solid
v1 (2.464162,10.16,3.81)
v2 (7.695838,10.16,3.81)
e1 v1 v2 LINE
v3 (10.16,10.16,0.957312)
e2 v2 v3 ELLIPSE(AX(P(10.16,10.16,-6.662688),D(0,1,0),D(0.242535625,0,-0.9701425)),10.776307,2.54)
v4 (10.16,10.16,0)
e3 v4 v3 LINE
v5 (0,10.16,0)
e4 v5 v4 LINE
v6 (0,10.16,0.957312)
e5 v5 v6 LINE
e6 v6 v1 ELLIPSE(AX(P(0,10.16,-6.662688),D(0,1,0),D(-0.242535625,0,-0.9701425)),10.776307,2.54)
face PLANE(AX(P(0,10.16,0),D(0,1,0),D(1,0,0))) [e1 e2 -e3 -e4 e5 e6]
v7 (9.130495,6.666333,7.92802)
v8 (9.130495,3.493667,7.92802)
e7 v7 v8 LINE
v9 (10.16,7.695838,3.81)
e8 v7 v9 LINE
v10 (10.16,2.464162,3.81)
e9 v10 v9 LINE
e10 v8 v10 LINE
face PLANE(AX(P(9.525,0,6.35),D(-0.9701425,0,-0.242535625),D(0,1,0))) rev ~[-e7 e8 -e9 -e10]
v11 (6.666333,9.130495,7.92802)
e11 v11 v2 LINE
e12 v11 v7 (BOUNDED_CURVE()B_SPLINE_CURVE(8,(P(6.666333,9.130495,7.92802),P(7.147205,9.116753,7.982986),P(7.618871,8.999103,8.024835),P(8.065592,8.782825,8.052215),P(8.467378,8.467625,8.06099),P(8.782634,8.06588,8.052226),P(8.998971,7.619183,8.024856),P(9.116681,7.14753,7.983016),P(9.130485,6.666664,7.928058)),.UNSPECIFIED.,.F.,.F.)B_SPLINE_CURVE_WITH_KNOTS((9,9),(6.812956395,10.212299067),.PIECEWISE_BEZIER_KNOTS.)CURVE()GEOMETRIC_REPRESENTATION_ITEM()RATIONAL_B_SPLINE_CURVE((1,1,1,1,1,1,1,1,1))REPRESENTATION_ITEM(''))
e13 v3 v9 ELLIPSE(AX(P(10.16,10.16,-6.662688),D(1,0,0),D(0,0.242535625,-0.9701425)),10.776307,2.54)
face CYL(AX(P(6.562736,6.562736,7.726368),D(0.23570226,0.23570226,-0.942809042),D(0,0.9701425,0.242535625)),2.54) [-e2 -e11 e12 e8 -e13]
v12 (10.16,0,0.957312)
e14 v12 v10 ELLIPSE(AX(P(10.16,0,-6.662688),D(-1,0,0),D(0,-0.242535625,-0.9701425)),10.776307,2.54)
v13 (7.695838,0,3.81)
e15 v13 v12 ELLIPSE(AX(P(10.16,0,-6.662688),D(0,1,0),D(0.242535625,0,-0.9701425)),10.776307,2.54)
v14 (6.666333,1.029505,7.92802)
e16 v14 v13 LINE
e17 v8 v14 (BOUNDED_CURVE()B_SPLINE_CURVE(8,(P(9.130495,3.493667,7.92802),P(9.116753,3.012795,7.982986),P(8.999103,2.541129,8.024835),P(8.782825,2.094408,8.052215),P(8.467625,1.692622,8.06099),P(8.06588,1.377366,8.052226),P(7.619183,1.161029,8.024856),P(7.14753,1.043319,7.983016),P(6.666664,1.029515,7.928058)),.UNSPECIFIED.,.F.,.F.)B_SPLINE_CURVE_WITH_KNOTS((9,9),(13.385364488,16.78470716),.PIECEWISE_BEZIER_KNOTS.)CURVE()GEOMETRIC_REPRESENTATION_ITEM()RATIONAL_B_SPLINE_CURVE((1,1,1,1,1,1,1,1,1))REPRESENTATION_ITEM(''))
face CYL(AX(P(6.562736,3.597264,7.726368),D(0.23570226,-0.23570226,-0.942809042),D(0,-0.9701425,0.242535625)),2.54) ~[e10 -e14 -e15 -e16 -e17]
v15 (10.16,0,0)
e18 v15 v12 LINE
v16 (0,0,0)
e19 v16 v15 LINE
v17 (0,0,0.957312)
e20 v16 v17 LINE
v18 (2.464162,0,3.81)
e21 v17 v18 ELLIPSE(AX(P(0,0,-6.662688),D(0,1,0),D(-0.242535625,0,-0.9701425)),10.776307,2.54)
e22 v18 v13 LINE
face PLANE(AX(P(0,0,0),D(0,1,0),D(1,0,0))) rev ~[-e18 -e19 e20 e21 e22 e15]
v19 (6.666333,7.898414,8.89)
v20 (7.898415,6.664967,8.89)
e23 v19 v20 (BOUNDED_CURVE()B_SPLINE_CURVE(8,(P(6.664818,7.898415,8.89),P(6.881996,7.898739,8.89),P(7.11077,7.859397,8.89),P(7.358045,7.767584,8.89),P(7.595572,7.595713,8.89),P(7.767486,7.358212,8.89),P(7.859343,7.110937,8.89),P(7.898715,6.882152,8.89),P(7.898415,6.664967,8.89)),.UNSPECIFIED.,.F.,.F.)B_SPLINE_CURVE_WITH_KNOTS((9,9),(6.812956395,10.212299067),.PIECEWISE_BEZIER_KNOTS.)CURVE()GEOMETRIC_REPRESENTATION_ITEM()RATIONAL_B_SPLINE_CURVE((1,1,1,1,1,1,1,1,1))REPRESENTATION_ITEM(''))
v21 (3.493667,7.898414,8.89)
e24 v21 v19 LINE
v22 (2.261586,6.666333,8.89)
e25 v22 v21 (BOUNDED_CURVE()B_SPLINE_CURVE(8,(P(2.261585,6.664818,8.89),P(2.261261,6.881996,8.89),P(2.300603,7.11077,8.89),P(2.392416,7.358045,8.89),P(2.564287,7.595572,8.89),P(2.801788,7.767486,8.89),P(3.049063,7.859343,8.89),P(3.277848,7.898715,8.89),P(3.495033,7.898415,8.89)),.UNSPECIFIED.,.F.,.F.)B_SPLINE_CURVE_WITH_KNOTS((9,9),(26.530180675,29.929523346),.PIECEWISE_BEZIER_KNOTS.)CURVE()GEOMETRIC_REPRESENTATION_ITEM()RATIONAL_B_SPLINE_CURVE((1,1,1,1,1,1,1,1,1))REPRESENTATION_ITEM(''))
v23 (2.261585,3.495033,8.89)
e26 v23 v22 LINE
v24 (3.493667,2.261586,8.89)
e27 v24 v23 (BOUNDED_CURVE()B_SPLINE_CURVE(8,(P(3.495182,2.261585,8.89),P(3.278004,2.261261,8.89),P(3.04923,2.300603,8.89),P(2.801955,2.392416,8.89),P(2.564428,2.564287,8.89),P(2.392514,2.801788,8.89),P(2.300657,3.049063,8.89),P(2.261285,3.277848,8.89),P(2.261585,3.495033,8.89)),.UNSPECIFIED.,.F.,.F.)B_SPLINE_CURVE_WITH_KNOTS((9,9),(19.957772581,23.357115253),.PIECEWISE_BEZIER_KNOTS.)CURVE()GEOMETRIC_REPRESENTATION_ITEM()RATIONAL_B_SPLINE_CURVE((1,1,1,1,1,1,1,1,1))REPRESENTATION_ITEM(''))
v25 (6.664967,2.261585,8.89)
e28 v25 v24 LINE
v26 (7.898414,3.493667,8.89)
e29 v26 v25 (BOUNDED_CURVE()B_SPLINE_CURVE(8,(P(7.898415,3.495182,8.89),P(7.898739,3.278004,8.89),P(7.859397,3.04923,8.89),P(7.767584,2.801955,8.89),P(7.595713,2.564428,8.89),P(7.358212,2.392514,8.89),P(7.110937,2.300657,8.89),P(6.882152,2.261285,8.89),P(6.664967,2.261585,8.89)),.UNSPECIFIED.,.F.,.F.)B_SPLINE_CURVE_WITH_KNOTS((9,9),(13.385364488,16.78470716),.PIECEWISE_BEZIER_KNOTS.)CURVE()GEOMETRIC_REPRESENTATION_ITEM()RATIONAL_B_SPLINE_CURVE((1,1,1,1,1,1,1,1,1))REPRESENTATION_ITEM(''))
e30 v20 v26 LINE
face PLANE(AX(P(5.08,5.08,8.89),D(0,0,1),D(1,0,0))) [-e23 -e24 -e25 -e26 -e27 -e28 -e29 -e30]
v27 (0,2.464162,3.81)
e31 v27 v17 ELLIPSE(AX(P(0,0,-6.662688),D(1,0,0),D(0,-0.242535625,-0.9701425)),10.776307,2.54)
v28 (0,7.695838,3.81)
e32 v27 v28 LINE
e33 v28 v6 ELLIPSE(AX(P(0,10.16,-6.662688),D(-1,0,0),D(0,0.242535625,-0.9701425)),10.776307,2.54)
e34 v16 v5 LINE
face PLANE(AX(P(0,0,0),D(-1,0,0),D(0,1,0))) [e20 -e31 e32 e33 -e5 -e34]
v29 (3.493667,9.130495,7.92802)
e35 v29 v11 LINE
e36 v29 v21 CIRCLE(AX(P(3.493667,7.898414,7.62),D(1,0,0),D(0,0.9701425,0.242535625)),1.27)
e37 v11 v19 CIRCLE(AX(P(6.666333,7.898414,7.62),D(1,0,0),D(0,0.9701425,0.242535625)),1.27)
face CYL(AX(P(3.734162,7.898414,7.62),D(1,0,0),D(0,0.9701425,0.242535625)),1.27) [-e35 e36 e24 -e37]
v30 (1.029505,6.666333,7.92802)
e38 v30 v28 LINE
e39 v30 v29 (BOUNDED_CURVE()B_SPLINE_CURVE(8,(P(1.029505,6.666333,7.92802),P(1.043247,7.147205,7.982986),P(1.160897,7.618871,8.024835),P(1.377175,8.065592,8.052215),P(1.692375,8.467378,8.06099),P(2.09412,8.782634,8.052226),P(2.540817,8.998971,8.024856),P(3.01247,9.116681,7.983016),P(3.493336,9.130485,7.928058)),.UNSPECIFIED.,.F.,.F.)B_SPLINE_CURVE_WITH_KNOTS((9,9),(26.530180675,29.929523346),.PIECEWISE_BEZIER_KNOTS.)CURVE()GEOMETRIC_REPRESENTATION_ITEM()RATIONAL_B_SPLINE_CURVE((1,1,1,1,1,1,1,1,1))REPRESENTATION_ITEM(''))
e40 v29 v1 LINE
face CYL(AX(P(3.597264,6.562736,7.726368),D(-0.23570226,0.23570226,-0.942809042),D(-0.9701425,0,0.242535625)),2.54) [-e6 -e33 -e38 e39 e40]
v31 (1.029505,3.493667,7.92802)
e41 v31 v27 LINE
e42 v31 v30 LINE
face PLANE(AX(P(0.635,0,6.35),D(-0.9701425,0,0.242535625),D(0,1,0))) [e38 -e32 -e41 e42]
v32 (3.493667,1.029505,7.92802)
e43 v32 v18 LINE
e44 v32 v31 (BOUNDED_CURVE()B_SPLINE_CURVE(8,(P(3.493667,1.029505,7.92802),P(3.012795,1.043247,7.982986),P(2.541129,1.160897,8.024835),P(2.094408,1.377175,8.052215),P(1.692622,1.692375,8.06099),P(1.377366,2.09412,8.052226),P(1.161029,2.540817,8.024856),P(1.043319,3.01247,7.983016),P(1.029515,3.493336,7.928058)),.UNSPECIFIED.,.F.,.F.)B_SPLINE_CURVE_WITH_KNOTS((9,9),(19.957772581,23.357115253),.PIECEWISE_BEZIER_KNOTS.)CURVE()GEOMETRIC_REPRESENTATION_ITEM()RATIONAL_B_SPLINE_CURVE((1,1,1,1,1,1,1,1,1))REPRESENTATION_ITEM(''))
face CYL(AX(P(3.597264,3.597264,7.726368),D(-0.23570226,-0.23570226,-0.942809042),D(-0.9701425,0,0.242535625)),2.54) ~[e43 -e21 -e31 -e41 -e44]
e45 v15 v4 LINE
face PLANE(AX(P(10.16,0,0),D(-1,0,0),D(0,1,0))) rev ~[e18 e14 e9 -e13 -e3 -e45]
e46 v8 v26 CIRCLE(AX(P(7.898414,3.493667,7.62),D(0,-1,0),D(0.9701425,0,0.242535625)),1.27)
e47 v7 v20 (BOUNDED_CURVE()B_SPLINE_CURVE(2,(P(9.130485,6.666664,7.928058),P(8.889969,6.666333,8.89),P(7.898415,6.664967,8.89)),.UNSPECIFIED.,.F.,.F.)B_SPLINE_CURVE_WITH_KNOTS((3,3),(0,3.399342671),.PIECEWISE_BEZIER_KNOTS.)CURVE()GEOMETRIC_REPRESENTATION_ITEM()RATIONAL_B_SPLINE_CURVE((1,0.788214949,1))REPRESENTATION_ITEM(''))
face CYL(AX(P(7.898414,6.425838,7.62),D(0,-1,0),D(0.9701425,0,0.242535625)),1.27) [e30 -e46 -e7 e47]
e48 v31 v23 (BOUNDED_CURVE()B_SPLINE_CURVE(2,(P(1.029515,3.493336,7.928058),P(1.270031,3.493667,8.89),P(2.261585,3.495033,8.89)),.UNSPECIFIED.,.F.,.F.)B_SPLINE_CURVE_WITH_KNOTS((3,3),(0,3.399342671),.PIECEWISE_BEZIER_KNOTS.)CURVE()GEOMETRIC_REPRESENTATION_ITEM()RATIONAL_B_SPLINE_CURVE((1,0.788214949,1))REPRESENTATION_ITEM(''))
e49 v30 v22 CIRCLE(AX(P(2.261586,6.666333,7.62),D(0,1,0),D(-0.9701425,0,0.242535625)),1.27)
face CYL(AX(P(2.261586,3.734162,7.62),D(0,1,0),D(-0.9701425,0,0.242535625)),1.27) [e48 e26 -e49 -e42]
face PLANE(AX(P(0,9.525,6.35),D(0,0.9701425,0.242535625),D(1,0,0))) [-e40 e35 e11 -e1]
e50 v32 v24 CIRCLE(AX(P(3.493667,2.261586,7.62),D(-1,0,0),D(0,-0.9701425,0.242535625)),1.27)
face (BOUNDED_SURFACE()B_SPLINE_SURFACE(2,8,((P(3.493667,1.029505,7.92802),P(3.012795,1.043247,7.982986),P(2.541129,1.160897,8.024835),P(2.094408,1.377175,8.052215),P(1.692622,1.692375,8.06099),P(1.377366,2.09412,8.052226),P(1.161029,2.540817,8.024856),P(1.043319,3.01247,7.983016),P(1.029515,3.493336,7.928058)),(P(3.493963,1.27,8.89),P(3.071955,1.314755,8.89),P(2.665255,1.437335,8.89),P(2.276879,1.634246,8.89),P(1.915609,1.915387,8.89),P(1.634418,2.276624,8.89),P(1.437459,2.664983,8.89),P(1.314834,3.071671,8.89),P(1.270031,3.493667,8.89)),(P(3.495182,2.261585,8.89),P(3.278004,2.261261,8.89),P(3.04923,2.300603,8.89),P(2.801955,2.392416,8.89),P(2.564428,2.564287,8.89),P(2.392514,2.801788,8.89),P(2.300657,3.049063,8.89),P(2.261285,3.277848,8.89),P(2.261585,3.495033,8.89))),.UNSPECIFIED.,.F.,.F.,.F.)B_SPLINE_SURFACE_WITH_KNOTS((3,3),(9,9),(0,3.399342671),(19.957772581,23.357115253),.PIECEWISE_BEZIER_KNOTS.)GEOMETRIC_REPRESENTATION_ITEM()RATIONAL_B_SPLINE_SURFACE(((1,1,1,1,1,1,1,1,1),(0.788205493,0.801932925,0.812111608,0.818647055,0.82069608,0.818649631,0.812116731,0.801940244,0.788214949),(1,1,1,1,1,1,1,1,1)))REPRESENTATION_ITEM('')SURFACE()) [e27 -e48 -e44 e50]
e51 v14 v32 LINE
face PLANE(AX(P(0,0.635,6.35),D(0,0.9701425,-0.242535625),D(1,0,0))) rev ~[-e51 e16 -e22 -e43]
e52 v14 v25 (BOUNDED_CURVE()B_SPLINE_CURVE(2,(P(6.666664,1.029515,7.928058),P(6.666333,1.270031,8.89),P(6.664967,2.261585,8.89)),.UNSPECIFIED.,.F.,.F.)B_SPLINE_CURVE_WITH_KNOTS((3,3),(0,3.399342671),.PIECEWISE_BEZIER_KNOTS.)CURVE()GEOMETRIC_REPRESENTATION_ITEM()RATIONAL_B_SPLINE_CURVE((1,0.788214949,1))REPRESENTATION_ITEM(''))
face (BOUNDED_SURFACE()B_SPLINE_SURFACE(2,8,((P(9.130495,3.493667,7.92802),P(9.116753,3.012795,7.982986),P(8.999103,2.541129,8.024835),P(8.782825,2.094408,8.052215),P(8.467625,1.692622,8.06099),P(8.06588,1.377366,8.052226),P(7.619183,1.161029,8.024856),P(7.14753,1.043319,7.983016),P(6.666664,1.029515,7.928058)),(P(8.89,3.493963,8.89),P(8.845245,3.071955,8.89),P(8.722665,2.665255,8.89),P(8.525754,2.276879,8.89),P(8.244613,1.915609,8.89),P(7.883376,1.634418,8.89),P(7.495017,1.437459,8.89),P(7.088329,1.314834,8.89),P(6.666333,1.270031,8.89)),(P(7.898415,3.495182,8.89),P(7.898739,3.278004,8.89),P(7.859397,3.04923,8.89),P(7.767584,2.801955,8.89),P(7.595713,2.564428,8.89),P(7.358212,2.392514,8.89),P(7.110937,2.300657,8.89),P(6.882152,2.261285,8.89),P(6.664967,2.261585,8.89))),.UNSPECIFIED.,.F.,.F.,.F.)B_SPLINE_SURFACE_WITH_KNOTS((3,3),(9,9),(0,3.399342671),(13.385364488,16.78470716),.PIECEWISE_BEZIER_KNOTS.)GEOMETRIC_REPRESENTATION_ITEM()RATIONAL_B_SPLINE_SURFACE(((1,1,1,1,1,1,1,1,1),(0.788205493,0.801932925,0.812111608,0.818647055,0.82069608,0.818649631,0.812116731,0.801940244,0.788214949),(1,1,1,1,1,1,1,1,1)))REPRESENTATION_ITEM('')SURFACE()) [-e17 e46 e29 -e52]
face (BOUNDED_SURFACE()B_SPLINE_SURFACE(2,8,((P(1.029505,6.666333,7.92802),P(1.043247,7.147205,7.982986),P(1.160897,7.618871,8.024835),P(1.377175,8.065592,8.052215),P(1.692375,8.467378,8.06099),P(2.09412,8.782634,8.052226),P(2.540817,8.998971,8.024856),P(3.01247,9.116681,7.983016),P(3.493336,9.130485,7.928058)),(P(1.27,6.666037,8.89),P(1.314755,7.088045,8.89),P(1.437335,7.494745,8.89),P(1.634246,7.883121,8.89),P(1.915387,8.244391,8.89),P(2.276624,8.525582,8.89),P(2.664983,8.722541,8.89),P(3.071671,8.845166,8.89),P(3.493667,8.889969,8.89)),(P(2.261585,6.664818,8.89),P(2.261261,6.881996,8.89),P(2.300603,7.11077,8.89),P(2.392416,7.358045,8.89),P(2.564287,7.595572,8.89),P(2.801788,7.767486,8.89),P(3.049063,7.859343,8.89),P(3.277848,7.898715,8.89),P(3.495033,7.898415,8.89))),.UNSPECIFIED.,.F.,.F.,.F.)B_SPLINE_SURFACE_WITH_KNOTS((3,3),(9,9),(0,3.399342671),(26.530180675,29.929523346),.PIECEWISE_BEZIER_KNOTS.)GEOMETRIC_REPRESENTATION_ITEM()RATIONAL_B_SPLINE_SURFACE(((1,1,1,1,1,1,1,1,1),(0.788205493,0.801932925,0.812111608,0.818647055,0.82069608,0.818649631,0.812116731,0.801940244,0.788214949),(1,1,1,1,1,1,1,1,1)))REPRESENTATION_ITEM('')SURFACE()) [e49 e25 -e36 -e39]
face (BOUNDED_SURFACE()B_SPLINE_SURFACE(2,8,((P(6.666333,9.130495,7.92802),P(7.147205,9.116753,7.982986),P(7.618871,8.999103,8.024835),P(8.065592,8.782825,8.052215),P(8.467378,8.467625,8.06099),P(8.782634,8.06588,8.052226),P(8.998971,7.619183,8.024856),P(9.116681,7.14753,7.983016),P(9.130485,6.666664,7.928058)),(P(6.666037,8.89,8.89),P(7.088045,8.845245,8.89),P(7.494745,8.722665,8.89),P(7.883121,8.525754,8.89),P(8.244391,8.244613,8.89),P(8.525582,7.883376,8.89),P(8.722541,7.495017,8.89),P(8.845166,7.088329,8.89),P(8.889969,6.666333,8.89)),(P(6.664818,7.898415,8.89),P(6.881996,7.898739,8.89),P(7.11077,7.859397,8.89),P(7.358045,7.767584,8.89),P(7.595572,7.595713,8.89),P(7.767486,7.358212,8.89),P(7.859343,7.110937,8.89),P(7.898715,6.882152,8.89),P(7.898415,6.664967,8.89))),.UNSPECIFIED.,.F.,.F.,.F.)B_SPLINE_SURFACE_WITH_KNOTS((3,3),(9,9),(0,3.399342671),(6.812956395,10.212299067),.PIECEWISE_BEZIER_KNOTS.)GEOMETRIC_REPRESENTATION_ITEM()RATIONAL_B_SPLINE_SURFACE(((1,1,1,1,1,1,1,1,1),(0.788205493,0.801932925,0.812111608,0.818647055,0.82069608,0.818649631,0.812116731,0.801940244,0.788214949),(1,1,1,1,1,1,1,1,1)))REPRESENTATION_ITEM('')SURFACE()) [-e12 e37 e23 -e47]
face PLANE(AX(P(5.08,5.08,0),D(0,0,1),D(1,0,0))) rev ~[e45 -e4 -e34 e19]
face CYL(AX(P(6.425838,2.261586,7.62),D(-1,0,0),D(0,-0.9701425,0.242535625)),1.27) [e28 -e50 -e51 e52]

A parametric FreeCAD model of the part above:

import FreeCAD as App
import Part
import Sketcher

V = App.Vector
Q = App.Units.Quantity


def edges_at(feature, points):
    """Names of the edges that pass closest to the given points."""
    edges = feature.Shape.Edges
    near = lambda p: min(range(len(edges)), key=lambda i: edges[i].distToShape(Part.Vertex(*p))[0])
    return sorted({f"Edge{near(p) + 1}" for p in points})


def add_polygon(sketch, points):
    """Adds a closed chain of lines whose ends are joined by coincident constraints."""
    first, n = sketch.GeometryCount, len(points)
    for a, b in zip(points, points[1:] + points[:1]):
        sketch.addGeometry(Part.LineSegment(App.Vector(*a, 0), App.Vector(*b, 0)), False)
    for i in range(n):
        sketch.addConstraint(Sketcher.Constraint("Coincident", first + i, 2, first + (i + 1) % n, 1))

doc = App.newDocument("Part")
body = doc.addObject("PartDesign::Body", "Body")

# Sketch on XY plane
sketch1 = doc.addObject("Sketcher::SketchObject", "Sketch")
body.addObject(sketch1)
sketch1.AttachmentSupport = (doc.XY_Plane, [""])
sketch1.MapMode = "FlatFace"
add_polygon(sketch1, [(0, 10), (0, 0), (10, 0), (10, 10)])  # lines 0-3
sketch1.addConstraint([
    Sketcher.Constraint("Vertical", 0),
    Sketcher.Constraint("Horizontal", 1),
    Sketcher.Constraint("Vertical", 2),
    Sketcher.Constraint("Horizontal", 3),
    Sketcher.Constraint("Coincident", 0, 2, -1, 1),
    Sketcher.Constraint("Equal", 3, 0),
    Sketcher.Constraint("DistanceX", 1, 1, 1, 2, Q("0.4 in")),
])
pad1 = doc.addObject("PartDesign::Pad", "Pad")
body.addObject(pad1)
pad1.Profile = sketch1
pad1.Length = Q("0.35 in")
doc.recompute()

chamfer = doc.addObject("PartDesign::Chamfer", "Chamfer")
body.addObject(chamfer)
chamfer.Base = (pad1, edges_at(pad1, [
    (10.16, 5.08, 8.89),
    (5.08, 0, 8.89),
    (0, 5.08, 8.89),
    (5.08, 10.16, 8.89),
]))
chamfer.ChamferType = "Two distances"
chamfer.Size = Q("0.05 in")
chamfer.Size2 = Q("0.2 in")
chamfer.FlipDirection = True
doc.recompute()

fillet = doc.addObject("PartDesign::Fillet", "Fillet")
body.addObject(fillet)
fillet.Base = (chamfer, edges_at(chamfer, [
    (9.525, 0.635, 6.35),
    (9.525, 9.525, 6.35),
    (0.635, 9.525, 6.35),
    (0.635, 0.635, 6.35),
]))
fillet.Radius = Q("0.1 in")
doc.recompute()

fillet2 = doc.addObject("PartDesign::Fillet", "Fillet001")
body.addObject(fillet2)
fillet2.Base = (fillet, edges_at(fillet, [(1.983, 8.177, 8.89)]))
fillet2.Radius = Q("0.05 in")

doc.recompute()
